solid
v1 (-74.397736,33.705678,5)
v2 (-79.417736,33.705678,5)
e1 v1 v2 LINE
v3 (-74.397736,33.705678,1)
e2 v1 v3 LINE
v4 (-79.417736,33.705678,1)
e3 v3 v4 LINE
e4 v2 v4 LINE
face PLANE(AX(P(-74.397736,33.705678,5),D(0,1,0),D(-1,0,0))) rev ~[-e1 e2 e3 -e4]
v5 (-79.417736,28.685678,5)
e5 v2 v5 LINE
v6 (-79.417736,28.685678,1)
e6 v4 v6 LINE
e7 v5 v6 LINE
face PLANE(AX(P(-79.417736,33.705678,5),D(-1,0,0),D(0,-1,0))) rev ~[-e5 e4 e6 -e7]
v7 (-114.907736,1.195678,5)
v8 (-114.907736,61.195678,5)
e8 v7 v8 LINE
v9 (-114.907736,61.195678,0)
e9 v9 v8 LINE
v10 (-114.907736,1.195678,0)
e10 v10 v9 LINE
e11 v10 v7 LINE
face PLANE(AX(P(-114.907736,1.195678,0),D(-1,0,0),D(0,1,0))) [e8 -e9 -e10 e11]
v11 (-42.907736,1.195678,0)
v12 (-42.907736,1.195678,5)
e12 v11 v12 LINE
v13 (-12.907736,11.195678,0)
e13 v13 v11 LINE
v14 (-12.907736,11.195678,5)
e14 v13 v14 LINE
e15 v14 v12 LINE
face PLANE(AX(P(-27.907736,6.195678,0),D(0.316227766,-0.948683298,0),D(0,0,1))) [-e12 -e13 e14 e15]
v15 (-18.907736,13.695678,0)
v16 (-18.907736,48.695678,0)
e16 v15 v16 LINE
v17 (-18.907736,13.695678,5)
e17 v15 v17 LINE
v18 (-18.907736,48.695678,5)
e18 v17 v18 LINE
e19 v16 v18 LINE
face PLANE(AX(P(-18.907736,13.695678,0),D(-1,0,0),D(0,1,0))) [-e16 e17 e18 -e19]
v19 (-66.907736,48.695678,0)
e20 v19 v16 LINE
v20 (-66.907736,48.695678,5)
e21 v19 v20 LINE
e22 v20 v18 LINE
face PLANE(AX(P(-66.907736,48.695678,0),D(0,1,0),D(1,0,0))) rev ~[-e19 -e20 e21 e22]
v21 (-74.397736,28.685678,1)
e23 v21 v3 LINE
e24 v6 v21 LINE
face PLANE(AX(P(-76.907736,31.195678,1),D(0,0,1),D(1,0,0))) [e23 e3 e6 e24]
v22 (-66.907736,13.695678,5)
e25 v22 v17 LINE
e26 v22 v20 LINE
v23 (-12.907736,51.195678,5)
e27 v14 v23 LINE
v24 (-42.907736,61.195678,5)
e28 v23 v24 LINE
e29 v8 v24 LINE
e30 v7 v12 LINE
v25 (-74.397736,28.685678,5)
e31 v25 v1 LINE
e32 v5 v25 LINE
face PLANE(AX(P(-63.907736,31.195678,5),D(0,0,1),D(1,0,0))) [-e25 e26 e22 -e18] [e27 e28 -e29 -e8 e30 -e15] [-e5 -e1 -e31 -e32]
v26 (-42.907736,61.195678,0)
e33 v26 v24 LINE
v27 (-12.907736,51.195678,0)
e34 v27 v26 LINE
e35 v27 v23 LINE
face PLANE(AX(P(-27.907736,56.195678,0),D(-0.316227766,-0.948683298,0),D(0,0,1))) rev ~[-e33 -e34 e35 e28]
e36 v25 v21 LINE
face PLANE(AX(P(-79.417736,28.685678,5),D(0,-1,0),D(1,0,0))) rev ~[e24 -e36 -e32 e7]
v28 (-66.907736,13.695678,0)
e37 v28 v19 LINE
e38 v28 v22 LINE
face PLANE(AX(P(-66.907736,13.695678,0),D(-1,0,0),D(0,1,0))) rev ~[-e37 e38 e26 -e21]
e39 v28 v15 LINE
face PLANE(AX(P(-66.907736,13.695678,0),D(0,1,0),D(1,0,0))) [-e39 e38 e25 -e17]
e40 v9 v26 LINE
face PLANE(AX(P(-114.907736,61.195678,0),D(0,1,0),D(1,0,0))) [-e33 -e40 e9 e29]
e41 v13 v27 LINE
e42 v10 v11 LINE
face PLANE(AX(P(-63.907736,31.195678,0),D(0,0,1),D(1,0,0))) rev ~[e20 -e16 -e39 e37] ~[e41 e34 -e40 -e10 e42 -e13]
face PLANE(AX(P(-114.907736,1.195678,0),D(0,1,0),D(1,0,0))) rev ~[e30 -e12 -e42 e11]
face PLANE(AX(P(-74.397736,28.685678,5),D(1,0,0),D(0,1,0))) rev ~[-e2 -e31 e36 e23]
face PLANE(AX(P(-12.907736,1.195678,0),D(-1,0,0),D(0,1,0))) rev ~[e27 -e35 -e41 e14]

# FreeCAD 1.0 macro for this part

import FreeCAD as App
import Part
import Sketcher

V = App.Vector


def edges_at(feature, points):
    """Names of the edges that pass closest to the given points."""
    edges = feature.Shape.Edges
    near = lambda p: min(range(len(edges)), key=lambda i: edges[i].distToShape(Part.Vertex(*p))[0])
    return sorted({f"Edge{near(p) + 1}" for p in points})

doc = App.newDocument("Part")
body = doc.addObject("PartDesign::Body", "Body")

# Sketch on XY plane
sketch1 = body.newObject("Sketcher::SketchObject", "Sketch")
sketch1.AttachmentSupport = (doc.getObject("XY_Plane"), [""])
sketch1.MapMode = "FlatFace"
sketch1.addGeometry(Part.LineSegment(V(-115, 61, 0), V(-115, 1, 0)), False)
sketch1.addGeometry(Part.LineSegment(V(-115, 1, 0), V(-13, 1, 0)), False)
sketch1.addGeometry(Part.LineSegment(V(-13, 1, 0), V(-13, 61, 0)), False)
sketch1.addGeometry(Part.LineSegment(V(-13, 61, 0), V(-115, 61, 0)), False)
sketch1.addGeometry(Part.LineSegment(V(-19, 14, 0), V(-67, 14, 0)), False)
sketch1.addGeometry(Part.LineSegment(V(-67, 14, 0), V(-67, 49, 0)), False)
sketch1.addGeometry(Part.LineSegment(V(-67, 49, 0), V(-19, 49, 0)), False)
sketch1.addGeometry(Part.LineSegment(V(-19, 49, 0), V(-19, 14, 0)), False)
sketch1.addConstraint(Sketcher.Constraint("Coincident", 0, 2, 1, 1))
sketch1.addConstraint(Sketcher.Constraint("Coincident", 1, 2, 2, 1))
sketch1.addConstraint(Sketcher.Constraint("Coincident", 2, 2, 3, 1))
sketch1.addConstraint(Sketcher.Constraint("Coincident", 3, 2, 0, 1))
sketch1.addConstraint(Sketcher.Constraint("Coincident", 4, 2, 5, 1))
sketch1.addConstraint(Sketcher.Constraint("Coincident", 5, 2, 6, 1))
sketch1.addConstraint(Sketcher.Constraint("Coincident", 6, 2, 7, 1))
sketch1.addConstraint(Sketcher.Constraint("Coincident", 7, 2, 4, 1))
sketch1.addConstraint(Sketcher.Constraint("Vertical", 0))
sketch1.addConstraint(Sketcher.Constraint("Horizontal", 1))
sketch1.addConstraint(Sketcher.Constraint("Vertical", 2))
sketch1.addConstraint(Sketcher.Constraint("Horizontal", 3))
sketch1.addConstraint(Sketcher.Constraint("Horizontal", 4))
sketch1.addConstraint(Sketcher.Constraint("Vertical", 5))
sketch1.addConstraint(Sketcher.Constraint("Horizontal", 6))
sketch1.addConstraint(Sketcher.Constraint("Vertical", 7))
sketch1.addConstraint(Sketcher.Constraint("DistanceX", 1, 1, 1, 2, 102.0))
sketch1.addConstraint(Sketcher.Constraint("DistanceX", 4, 2, 4, 1, 48.0))
sketch1.addConstraint(Sketcher.Constraint("DistanceY", 0, 2, 0, 1, 60.0))
sketch1.addConstraint(Sketcher.Constraint("DistanceY", 5, 1, 5, 2, 35.0))
sketch1.addConstraint(Sketcher.Constraint("DistanceX", 0, 2, 4, 2, 48.0))
sketch1.addConstraint(Sketcher.Constraint("DistanceY", 0, 2, 4, 2, 12.5))
sketch1.addConstraint(Sketcher.Constraint("DistanceX", 0, 2, -1, 1, 114.907736))
sketch1.addConstraint(Sketcher.Constraint("DistanceY", -1, 1, 0, 2, 1.195678))
pad1 = body.newObject("PartDesign::Pad", "Pad")
pad1.Profile = sketch1
pad1.Length = 5

# Sketch on XY plane
sketch2 = body.newObject("Sketcher::SketchObject", "Sketch001")
sketch2.AttachmentSupport = (doc.getObject("XY_Plane"), [""])
sketch2.MapMode = "FlatFace"
sketch2.AttachmentOffset = App.Placement(V(0, 0, 5), App.Rotation())
sketch2.addGeometry(Part.LineSegment(V(-74, 34, 0), V(-79, 34, 0)), False)
sketch2.addGeometry(Part.LineSegment(V(-79, 34, 0), V(-79, 29, 0)), False)
sketch2.addGeometry(Part.LineSegment(V(-79, 29, 0), V(-74, 29, 0)), False)
sketch2.addGeometry(Part.LineSegment(V(-74, 29, 0), V(-74, 34, 0)), False)
sketch2.addConstraint(Sketcher.Constraint("Coincident", 0, 2, 1, 1))
sketch2.addConstraint(Sketcher.Constraint("Coincident", 1, 2, 2, 1))
sketch2.addConstraint(Sketcher.Constraint("Coincident", 2, 2, 3, 1))
sketch2.addConstraint(Sketcher.Constraint("Coincident", 3, 2, 0, 1))
sketch2.addConstraint(Sketcher.Constraint("Horizontal", 0))
sketch2.addConstraint(Sketcher.Constraint("Vertical", 1))
sketch2.addConstraint(Sketcher.Constraint("Horizontal", 2))
sketch2.addConstraint(Sketcher.Constraint("Vertical", 3))
sketch2.addConstraint(Sketcher.Constraint("Equal", 2, 1))
sketch2.addConstraint(Sketcher.Constraint("DistanceX", 0, 2, 0, 1, 5.02))
sketch2.addConstraint(Sketcher.Constraint("DistanceX", 0, 2, -1, 1, 79.417736))
sketch2.addConstraint(Sketcher.Constraint("DistanceY", -1, 1, 0, 2, 33.705678))
pocket1 = body.newObject("PartDesign::Pocket", "Pocket")
pocket1.Profile = sketch2
pocket1.Length = 4
doc.recompute()

chamfer = body.newObject("PartDesign::Chamfer", "Chamfer")
chamfer.Base = (pocket1, edges_at(pocket1, [(-12.908, 1.196, 2.5), (-12.908, 61.196, 2.5)]))
chamfer.ChamferType = "Two distances"
chamfer.Size = 10
chamfer.Size2 = 30
chamfer.FlipDirection = True

doc.recompute()
